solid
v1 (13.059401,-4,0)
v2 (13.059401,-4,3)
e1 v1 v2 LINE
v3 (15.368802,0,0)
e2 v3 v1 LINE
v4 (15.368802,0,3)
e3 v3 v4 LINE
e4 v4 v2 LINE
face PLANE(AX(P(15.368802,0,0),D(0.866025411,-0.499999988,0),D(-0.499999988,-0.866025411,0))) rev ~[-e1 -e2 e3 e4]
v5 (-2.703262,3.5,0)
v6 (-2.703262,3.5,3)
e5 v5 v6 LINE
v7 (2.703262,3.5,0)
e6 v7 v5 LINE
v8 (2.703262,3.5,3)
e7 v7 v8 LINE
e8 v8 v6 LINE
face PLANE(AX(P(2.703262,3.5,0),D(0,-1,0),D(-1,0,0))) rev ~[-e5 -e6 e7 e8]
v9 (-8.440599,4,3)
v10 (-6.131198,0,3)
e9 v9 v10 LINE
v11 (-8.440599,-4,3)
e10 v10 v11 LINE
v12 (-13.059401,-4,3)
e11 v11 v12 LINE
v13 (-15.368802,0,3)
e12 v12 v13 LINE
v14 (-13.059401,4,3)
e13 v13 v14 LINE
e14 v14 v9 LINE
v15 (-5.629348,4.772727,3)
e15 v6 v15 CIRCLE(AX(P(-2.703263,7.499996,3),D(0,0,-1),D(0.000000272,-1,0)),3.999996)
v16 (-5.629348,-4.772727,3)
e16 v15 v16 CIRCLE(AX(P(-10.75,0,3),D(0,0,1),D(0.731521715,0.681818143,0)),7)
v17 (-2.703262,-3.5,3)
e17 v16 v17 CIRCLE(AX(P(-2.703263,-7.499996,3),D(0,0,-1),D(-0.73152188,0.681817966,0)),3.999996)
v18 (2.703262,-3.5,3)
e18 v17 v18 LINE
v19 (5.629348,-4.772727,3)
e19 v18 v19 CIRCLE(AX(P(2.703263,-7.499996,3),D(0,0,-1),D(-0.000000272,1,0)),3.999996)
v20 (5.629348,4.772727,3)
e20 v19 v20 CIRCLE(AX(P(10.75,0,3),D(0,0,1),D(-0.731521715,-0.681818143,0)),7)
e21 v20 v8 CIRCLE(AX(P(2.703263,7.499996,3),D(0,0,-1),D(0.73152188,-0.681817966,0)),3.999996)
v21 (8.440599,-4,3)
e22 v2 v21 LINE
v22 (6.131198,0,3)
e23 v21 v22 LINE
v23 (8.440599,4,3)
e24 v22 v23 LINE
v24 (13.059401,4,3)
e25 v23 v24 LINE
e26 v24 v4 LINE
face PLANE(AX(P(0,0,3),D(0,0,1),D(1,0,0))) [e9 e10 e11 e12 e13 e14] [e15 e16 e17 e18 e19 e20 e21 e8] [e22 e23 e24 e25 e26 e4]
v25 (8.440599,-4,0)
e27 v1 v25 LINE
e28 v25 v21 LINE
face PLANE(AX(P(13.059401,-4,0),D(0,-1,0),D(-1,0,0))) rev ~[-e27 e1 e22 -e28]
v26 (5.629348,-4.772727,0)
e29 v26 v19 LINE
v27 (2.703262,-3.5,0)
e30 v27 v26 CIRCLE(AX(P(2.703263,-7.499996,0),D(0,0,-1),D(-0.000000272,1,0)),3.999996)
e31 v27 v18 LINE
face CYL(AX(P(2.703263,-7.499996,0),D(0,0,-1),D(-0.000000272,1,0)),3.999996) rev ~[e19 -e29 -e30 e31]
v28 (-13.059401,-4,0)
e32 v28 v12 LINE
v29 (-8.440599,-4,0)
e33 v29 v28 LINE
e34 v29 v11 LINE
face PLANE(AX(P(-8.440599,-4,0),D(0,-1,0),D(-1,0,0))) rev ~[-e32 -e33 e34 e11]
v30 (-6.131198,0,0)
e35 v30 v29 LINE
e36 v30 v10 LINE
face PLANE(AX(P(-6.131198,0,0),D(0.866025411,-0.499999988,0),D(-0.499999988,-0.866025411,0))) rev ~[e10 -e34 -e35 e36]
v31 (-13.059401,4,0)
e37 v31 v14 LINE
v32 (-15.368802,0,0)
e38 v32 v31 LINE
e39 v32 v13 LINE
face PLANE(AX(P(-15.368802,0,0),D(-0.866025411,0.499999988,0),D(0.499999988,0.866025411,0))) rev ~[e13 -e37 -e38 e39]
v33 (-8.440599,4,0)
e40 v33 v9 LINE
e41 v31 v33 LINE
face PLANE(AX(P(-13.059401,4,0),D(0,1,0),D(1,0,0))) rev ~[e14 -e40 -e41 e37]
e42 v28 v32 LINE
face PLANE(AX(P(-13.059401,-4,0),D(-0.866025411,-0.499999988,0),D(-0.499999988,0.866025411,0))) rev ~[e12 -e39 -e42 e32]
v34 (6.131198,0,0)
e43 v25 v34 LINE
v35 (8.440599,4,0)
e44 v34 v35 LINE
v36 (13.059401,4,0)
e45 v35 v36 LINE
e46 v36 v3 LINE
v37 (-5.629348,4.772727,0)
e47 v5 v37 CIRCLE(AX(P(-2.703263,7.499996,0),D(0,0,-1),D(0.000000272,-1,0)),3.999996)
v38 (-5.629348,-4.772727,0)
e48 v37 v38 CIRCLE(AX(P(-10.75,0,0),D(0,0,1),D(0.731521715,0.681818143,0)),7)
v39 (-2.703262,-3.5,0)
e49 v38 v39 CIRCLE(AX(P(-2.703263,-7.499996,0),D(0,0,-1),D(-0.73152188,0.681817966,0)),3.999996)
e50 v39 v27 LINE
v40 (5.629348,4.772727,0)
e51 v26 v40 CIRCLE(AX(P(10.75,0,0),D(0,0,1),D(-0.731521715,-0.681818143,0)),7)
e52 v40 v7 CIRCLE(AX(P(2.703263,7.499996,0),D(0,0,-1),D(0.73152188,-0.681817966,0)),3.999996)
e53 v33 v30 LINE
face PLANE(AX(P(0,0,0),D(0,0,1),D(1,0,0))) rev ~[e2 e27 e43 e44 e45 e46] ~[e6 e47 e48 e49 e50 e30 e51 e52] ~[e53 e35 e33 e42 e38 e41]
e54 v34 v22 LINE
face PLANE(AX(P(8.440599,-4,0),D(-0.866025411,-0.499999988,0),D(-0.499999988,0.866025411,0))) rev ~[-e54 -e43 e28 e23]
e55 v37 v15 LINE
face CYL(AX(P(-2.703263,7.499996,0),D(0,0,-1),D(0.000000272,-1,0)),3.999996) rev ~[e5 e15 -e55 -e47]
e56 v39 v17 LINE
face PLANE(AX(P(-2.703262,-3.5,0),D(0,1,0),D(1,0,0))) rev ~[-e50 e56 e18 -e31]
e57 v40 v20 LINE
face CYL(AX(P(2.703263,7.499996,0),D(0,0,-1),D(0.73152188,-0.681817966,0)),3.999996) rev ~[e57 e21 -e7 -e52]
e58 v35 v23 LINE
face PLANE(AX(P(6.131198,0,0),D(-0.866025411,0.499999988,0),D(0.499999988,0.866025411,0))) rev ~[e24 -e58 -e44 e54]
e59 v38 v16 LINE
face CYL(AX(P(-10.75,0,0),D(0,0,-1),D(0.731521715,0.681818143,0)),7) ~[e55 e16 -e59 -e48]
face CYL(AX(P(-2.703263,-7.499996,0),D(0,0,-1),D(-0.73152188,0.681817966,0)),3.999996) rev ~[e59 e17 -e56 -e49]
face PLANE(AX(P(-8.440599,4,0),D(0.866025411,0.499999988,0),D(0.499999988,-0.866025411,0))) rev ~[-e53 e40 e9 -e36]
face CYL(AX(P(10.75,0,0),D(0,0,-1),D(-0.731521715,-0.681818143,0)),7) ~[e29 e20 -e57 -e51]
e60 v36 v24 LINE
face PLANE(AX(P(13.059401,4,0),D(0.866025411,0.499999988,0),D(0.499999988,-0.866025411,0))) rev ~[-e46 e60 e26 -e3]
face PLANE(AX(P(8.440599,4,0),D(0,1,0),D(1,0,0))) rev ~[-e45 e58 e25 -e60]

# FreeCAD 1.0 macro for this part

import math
import FreeCAD as App
import Part
import Sketcher
Q = App.Units.Quantity


def add_polygon(sketch, points):
    """Adds a closed chain of lines whose ends are joined by coincident constraints."""
    first, n = sketch.GeometryCount, len(points)
    for a, b in zip(points, points[1:] + points[:1]):
        sketch.addGeometry(Part.LineSegment(App.Vector(*a, 0), App.Vector(*b, 0)), False)
    for i in range(n):
        sketch.addConstraint(Sketcher.Constraint("Coincident", first + i, 2, first + (i + 1) % n, 1))

doc = App.newDocument("Part")
params = doc.addObject("Spreadsheet::Sheet", "Params")
for row, (alias, value) in enumerate([
    ("sketch1_radius", "7 mm"),
    ("pad1_length", "3 mm"),
], start=1):
    params.set(f"A{row}", alias)
    params.set(f"B{row}", "=" + value)
    params.setAlias(f"B{row}", alias)

body = doc.addObject("PartDesign::Body", "Body")

sketch1 = doc.addObject("Sketcher::SketchObject", "Sketch")
body.addObject(sketch1)
sketch1.AttachmentSupport = (doc.XY_Plane, [""])
sketch1.MapMode = "FlatFace"
sketch1.addGeometry(Part.ArcOfCircle(Part.Circle(App.Vector(-2.703263, 7.499996, 0), App.Vector(0, 0, 1), 3.999996), math.radians(-137.014131), math.radians(-89.999984)), False)
sketch1.addGeometry(Part.ArcOfCircle(Part.Circle(App.Vector(-10.75, 0, 0), App.Vector(0, 0, 1), 7), math.radians(42.985883), math.radians(317.014117)), False)
sketch1.addGeometry(Part.ArcOfCircle(Part.Circle(App.Vector(-2.703263, -7.499996, 0), App.Vector(0, 0, 1), 3.999996), math.radians(89.999984), math.radians(137.014131)), False)
sketch1.addGeometry(Part.LineSegment(App.Vector(-2.703262, -3.5, 0), App.Vector(2.703262, -3.5, 0)), False)
sketch1.addGeometry(Part.ArcOfCircle(Part.Circle(App.Vector(2.703263, -7.499996, 0), App.Vector(0, 0, 1), 3.999996), math.radians(42.985869), math.radians(90.000016)), False)
sketch1.addGeometry(Part.ArcOfCircle(Part.Circle(App.Vector(10.75, 0, 0), App.Vector(0, 0, 1), 7), math.radians(-137.014117), math.radians(137.014117)), False)
sketch1.addGeometry(Part.ArcOfCircle(Part.Circle(App.Vector(2.703263, 7.499996, 0), App.Vector(0, 0, 1), 3.999996), math.radians(-90.000016), math.radians(-42.985869)), False)
sketch1.addGeometry(Part.LineSegment(App.Vector(2.703262, 3.5, 0), App.Vector(-2.703262, 3.5, 0)), False)
add_polygon(sketch1, [(-8.440599, 4), (-6.131198, 0), (-8.440599, -4), (-13.059401, -4), (-15.368802, 0), (-13.059401, 4)])
add_polygon(sketch1, [(13.059401, 4), (15.368802, 0), (13.059401, -4), (8.440599, -4), (6.131198, 0), (8.440599, 4)])
sketch1.addConstraint([
    Sketcher.Constraint("Tangent", 0, 1, 1, 1),
    Sketcher.Constraint("Tangent", 1, 2, 2, 2),
    Sketcher.Constraint("Tangent", 2, 1, 3, 1),
    Sketcher.Constraint("Tangent", 3, 2, 4, 2),
    Sketcher.Constraint("Tangent", 4, 1, 5, 1),
    Sketcher.Constraint("Tangent", 5, 2, 6, 2),
    Sketcher.Constraint("Tangent", 6, 1, 7, 1),
    Sketcher.Constraint("Tangent", 7, 2, 0, 2),
    Sketcher.Constraint("Horizontal", 3),
    Sketcher.Constraint("Horizontal", 7),
    Sketcher.Constraint("Horizontal", 10),
    Sketcher.Constraint("Horizontal", 13),
    Sketcher.Constraint("Horizontal", 16),
    Sketcher.Constraint("Horizontal", 19),
    Sketcher.Constraint("Equal", 0, 2),
    Sketcher.Constraint("Equal", 2, 4),
    Sketcher.Constraint("Equal", 1, 5),
    Sketcher.Constraint("Equal", 4, 6),
    Sketcher.Constraint("Symmetric", 0, 3, 4, 3, -1, 1),
    Sketcher.Constraint("Symmetric", 11, 2, 14, 2, -1, 1),
    Sketcher.Constraint("Symmetric", 12, 2, 15, 2, -1, 1),
    Sketcher.Constraint("Symmetric", 8, 2, 17, 2, -1, 1),
    Sketcher.Constraint("Symmetric", 9, 2, 18, 2, -1, 1),
    Sketcher.Constraint("Symmetric", 1, 3, 5, 3, -2),
    Sketcher.Constraint("Symmetric", 10, 2, 15, 2, -2),
    Sketcher.Constraint("PointOnObject", 8, 2, -1),
    Sketcher.Constraint("PointOnObject", 11, 2, -1),
    Sketcher.Constraint("Parallel", 8, 11),
    Sketcher.Constraint("Parallel", 9, 12),
    Sketcher.Constraint("Parallel", 11, 14),
    Sketcher.Constraint("Parallel", 14, 17),
    Sketcher.Constraint("Radius", 1, 7.0),
    Sketcher.Constraint("Angle", 8, Q("-60.000001 deg")),
    Sketcher.Constraint("DistanceY", 9, 2, -1, 1, 4.0),
    Sketcher.Constraint("DistanceY", 3, 2, 6, 1, 7.0),
    Sketcher.Constraint("DistanceX", 1, 3, 5, 3, 21.5),
    Sketcher.Constraint("DistanceX", 10, 2, 10, 1, 4.618802),
    Sketcher.Constraint("Radius", 0, 3.999996),
    Sketcher.Constraint("DistanceX", 8, 2, -1, 1, 6.131198),
])
sketch1.setExpression("Constraints[43]", "Params.sketch1_radius")
pad1 = doc.addObject("PartDesign::Pad", "Pad")
body.addObject(pad1)
pad1.Profile = sketch1
pad1.setExpression("Length", "Params.pad1_length")

doc.recompute()
